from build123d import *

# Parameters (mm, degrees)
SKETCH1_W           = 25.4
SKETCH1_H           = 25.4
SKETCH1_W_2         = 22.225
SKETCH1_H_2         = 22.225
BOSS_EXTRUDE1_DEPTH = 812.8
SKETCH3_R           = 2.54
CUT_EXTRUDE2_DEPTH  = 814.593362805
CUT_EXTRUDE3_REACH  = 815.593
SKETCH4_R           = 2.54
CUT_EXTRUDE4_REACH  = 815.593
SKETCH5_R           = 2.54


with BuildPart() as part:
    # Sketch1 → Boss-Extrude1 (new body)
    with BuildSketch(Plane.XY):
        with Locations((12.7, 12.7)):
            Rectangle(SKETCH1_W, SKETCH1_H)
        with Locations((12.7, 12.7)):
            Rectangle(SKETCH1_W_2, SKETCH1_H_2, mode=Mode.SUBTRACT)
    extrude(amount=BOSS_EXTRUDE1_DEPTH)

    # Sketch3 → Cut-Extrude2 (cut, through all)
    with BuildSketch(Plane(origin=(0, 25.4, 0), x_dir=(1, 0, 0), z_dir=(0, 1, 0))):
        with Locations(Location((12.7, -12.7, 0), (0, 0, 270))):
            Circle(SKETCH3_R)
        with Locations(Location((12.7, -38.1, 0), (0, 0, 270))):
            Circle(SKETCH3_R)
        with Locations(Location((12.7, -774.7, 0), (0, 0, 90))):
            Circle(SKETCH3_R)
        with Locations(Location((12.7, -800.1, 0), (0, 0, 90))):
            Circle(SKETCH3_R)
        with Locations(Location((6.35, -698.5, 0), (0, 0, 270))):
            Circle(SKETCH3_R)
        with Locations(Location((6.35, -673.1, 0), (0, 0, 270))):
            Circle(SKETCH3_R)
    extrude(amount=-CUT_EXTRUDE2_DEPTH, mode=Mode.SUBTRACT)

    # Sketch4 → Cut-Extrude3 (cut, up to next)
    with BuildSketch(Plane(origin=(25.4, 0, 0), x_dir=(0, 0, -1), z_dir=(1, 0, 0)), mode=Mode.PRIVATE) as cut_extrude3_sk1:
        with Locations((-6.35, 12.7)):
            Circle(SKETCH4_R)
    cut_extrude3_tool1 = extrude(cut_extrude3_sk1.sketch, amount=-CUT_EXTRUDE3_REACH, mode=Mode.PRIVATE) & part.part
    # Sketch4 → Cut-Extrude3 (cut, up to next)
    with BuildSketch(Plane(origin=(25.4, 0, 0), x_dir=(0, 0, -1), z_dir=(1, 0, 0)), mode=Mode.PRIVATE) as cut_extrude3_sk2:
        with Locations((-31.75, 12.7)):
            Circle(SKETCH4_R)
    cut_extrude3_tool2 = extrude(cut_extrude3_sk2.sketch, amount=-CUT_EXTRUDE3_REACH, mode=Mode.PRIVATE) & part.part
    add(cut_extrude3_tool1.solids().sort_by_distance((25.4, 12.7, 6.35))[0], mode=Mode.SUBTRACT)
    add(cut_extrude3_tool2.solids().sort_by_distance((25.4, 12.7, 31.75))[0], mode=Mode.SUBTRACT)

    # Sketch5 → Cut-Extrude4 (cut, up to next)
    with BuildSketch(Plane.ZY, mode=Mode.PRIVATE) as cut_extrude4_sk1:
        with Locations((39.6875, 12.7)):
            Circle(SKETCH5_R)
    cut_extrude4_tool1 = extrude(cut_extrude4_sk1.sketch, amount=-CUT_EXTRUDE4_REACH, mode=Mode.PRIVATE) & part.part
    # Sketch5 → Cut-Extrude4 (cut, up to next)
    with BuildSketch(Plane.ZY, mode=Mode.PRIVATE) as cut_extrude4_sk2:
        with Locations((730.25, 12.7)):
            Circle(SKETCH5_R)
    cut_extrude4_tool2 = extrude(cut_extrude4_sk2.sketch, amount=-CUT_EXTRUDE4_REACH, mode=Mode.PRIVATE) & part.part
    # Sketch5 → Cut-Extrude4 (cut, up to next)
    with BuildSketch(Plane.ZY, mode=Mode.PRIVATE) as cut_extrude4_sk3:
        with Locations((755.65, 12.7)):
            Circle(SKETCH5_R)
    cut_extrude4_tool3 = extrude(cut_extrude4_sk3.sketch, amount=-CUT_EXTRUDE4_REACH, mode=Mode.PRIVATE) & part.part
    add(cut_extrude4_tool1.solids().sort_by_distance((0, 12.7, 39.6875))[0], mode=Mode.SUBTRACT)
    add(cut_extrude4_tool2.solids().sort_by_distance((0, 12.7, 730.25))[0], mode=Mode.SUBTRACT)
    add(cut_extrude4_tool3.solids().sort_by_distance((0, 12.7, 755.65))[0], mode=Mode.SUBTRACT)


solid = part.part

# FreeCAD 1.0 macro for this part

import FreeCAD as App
import Part
import Sketcher

V = App.Vector
Q = App.Units.Quantity

doc = App.newDocument("Part")
body = doc.addObject("PartDesign::Body", "Body")

# Sketch on XY plane
sketch1 = doc.addObject("Sketcher::SketchObject", "Sketch")
body.addObject(sketch1)
sketch1.AttachmentSupport = (doc.XY_Plane, [""])
sketch1.MapMode = "FlatFace"
sketch1.addGeometry([
    Part.LineSegment(V(0, 25, 0), V(0, 0, 0)),  # 0
    Part.LineSegment(V(0, 0, 0), V(25, 0, 0)),  # 1
    Part.LineSegment(V(25, 0, 0), V(25, 25, 0)),  # 2
    Part.LineSegment(V(25, 25, 0), V(0, 25, 0)),  # 3
    Part.LineSegment(V(24, 2, 0), V(2, 2, 0)),  # 4
    Part.LineSegment(V(2, 2, 0), V(2, 24, 0)),  # 5
    Part.LineSegment(V(2, 24, 0), V(24, 24, 0)),  # 6
    Part.LineSegment(V(24, 24, 0), V(24, 2, 0)),  # 7
], False)
sketch1.addConstraint([
    Sketcher.Constraint("Coincident", 0, 2, 1, 1),
    Sketcher.Constraint("Coincident", 1, 2, 2, 1),
    Sketcher.Constraint("Coincident", 2, 2, 3, 1),
    Sketcher.Constraint("Coincident", 3, 2, 0, 1),
    Sketcher.Constraint("Coincident", 4, 2, 5, 1),
    Sketcher.Constraint("Coincident", 5, 2, 6, 1),
    Sketcher.Constraint("Coincident", 6, 2, 7, 1),
    Sketcher.Constraint("Coincident", 7, 2, 4, 1),
    Sketcher.Constraint("Vertical", 0),
    Sketcher.Constraint("Horizontal", 1),
    Sketcher.Constraint("Vertical", 2),
    Sketcher.Constraint("Horizontal", 3),
    Sketcher.Constraint("Horizontal", 4),
    Sketcher.Constraint("Vertical", 5),
    Sketcher.Constraint("Horizontal", 6),
    Sketcher.Constraint("Vertical", 7),
    Sketcher.Constraint("Coincident", 0, 2, -1, 1),
    Sketcher.Constraint("Equal", 3, 0),
    Sketcher.Constraint("Equal", 6, 5),
    Sketcher.Constraint("DistanceX", 1, 1, 1, 2, Q("1 in")),
    Sketcher.Constraint("DistanceX", 4, 2, 4, 1, Q("0.875 in")),
    Sketcher.Constraint("DistanceX", -1, 1, 4, 2, Q("0.0625 in")),
    Sketcher.Constraint("DistanceY", -1, 1, 4, 2, Q("0.0625 in")),
])
pad1 = doc.addObject("PartDesign::Pad", "Pad")
body.addObject(pad1)
pad1.Profile = sketch1
pad1.Length = Q("32 in")

# Sketch on XZ plane
sketch2 = doc.addObject("Sketcher::SketchObject", "Sketch001")
body.addObject(sketch2)
sketch2.AttachmentSupport = (doc.XZ_Plane, [""])
sketch2.MapMode = "FlatFace"
sketch2.AttachmentOffset = App.Placement(V(0, 0, -1 * 25.4), App.Rotation())
sketch2.addGeometry([
    Part.Circle(V(12.7, 12.7, 0), V(0, 0, 1), 2.5),  # 0
    Part.Circle(V(12.7, 38.1, 0), V(0, 0, 1), 2.5),  # 1
    Part.Circle(V(12.7, 774.7, 0), V(0, 0, 1), 2.5),  # 2
    Part.Circle(V(12.7, 800.1, 0), V(0, 0, 1), 2.5),  # 3
    Part.Circle(V(6.3, 698.5, 0), V(0, 0, 1), 2.5),  # 4
    Part.Circle(V(6.3, 673.1, 0), V(0, 0, 1), 2.5),  # 5
], False)
sketch2.addConstraint([
    Sketcher.Constraint("Equal", 0, 1),
    Sketcher.Constraint("Equal", 1, 2),
    Sketcher.Constraint("Equal", 2, 3),
    Sketcher.Constraint("Equal", 3, 4),
    Sketcher.Constraint("Equal", 4, 5),
    Sketcher.Constraint("Vertical", 0, 3, 1, 3),
    Sketcher.Constraint("Vertical", 1, 3, 2, 3),
    Sketcher.Constraint("Vertical", 2, 3, 3, 3),
    Sketcher.Constraint("Vertical", 4, 3, 5, 3),
    Sketcher.Constraint("Diameter", 0, Q("0.2 in")),
    Sketcher.Constraint("DistanceY", 0, 3, 1, 3, Q("1 in")),
    Sketcher.Constraint("DistanceY", 1, 3, 2, 3, Q("29 in")),
    Sketcher.Constraint("DistanceY", 2, 3, 3, 3, Q("1 in")),
    Sketcher.Constraint("DistanceY", 4, 3, 2, 3, Q("3 in")),
    Sketcher.Constraint("DistanceY", 5, 3, 4, 3, Q("1 in")),
    Sketcher.Constraint("DistanceX", -1, 1, 0, 3, Q("0.5 in")),
    Sketcher.Constraint("DistanceY", -1, 1, 0, 3, Q("0.5 in")),
    Sketcher.Constraint("DistanceX", -1, 1, 4, 3, Q("0.25 in")),
])
pocket1 = doc.addObject("PartDesign::Pocket", "Pocket")
body.addObject(pocket1)
pocket1.Profile = sketch2
pocket1.Type = "ThroughAll"
pocket1.Reversed = True

# Sketch on YZ plane
sketch3 = doc.addObject("Sketcher::SketchObject", "Sketch002")
body.addObject(sketch3)
sketch3.AttachmentSupport = (doc.YZ_Plane, [""])
sketch3.MapMode = "FlatFace"
sketch3.AttachmentOffset = App.Placement(V(0, 0, 1 * 25.4), App.Rotation())
sketch3.addGeometry(Part.Circle(V(12.7, 6.3, 0), V(0, 0, 1), 2.5), False)
sketch3.addConstraint([
    Sketcher.Constraint("Diameter", 0, Q("0.2 in")),
    Sketcher.Constraint("DistanceX", -1, 1, 0, 3, Q("0.5 in")),
    Sketcher.Constraint("DistanceY", -1, 1, 0, 3, Q("0.25 in")),
])
pocket2 = doc.addObject("PartDesign::Pocket", "Pocket001")
body.addObject(pocket2)
pocket2.Profile = sketch3
pocket2.Type = "UpToFirst"

# Sketch on YZ plane
sketch4 = doc.addObject("Sketcher::SketchObject", "Sketch003")
body.addObject(sketch4)
sketch4.AttachmentSupport = (doc.YZ_Plane, [""])
sketch4.MapMode = "FlatFace"
sketch4.AttachmentOffset = App.Placement(V(0, 0, 1 * 25.4), App.Rotation())
sketch4.addGeometry(Part.Circle(V(12.7, 31.8, 0), V(0, 0, 1), 2.5), False)
sketch4.addConstraint([
    Sketcher.Constraint("Diameter", 0, Q("0.2 in")),
    Sketcher.Constraint("DistanceX", -1, 1, 0, 3, Q("0.5 in")),
    Sketcher.Constraint("DistanceY", -1, 1, 0, 3, Q("1.25 in")),
])
pocket3 = doc.addObject("PartDesign::Pocket", "Pocket002")
body.addObject(pocket3)
pocket3.Profile = sketch4
pocket3.Type = "UpToFirst"

# Sketch on YZ plane
sketch5 = doc.addObject("Sketcher::SketchObject", "Sketch004")
body.addObject(sketch5)
sketch5.AttachmentSupport = (doc.YZ_Plane, [""])
sketch5.MapMode = "FlatFace"
sketch5.addGeometry(Part.Circle(V(12.7, 39.7, 0), V(0, 0, 1), 2.5), False)
sketch5.addConstraint([
    Sketcher.Constraint("Diameter", 0, Q("0.2 in")),
    Sketcher.Constraint("DistanceX", -1, 1, 0, 3, Q("0.5 in")),
    Sketcher.Constraint("DistanceY", -1, 1, 0, 3, Q("1.5625 in")),
])
pocket4 = doc.addObject("PartDesign::Pocket", "Pocket003")
body.addObject(pocket4)
pocket4.Profile = sketch5
pocket4.Type = "UpToFirst"
pocket4.Reversed = True

# Sketch on YZ plane
sketch6 = doc.addObject("Sketcher::SketchObject", "Sketch005")
body.addObject(sketch6)
sketch6.AttachmentSupport = (doc.YZ_Plane, [""])
sketch6.MapMode = "FlatFace"
sketch6.addGeometry(Part.Circle(V(12.7, 730.2, 0), V(0, 0, 1), 2.5), False)
sketch6.addConstraint([
    Sketcher.Constraint("Diameter", 0, Q("0.2 in")),
    Sketcher.Constraint("DistanceX", -1, 1, 0, 3, Q("0.5 in")),
    Sketcher.Constraint("DistanceY", -1, 1, 0, 3, Q("28.75 in")),
])
pocket5 = doc.addObject("PartDesign::Pocket", "Pocket004")
body.addObject(pocket5)
pocket5.Profile = sketch6
pocket5.Type = "UpToFirst"
pocket5.Reversed = True

# Sketch on YZ plane
sketch7 = doc.addObject("Sketcher::SketchObject", "Sketch006")
body.addObject(sketch7)
sketch7.AttachmentSupport = (doc.YZ_Plane, [""])
sketch7.MapMode = "FlatFace"
sketch7.addGeometry(Part.Circle(V(12.7, 755.6, 0), V(0, 0, 1), 2.5), False)
sketch7.addConstraint([
    Sketcher.Constraint("Diameter", 0, Q("0.2 in")),
    Sketcher.Constraint("DistanceX", -1, 1, 0, 3, Q("0.5 in")),
    Sketcher.Constraint("DistanceY", -1, 1, 0, 3, Q("29.75 in")),
])
pocket6 = doc.addObject("PartDesign::Pocket", "Pocket005")
body.addObject(pocket6)
pocket6.Profile = sketch7
pocket6.Type = "UpToFirst"
pocket6.Reversed = True

doc.recompute()
